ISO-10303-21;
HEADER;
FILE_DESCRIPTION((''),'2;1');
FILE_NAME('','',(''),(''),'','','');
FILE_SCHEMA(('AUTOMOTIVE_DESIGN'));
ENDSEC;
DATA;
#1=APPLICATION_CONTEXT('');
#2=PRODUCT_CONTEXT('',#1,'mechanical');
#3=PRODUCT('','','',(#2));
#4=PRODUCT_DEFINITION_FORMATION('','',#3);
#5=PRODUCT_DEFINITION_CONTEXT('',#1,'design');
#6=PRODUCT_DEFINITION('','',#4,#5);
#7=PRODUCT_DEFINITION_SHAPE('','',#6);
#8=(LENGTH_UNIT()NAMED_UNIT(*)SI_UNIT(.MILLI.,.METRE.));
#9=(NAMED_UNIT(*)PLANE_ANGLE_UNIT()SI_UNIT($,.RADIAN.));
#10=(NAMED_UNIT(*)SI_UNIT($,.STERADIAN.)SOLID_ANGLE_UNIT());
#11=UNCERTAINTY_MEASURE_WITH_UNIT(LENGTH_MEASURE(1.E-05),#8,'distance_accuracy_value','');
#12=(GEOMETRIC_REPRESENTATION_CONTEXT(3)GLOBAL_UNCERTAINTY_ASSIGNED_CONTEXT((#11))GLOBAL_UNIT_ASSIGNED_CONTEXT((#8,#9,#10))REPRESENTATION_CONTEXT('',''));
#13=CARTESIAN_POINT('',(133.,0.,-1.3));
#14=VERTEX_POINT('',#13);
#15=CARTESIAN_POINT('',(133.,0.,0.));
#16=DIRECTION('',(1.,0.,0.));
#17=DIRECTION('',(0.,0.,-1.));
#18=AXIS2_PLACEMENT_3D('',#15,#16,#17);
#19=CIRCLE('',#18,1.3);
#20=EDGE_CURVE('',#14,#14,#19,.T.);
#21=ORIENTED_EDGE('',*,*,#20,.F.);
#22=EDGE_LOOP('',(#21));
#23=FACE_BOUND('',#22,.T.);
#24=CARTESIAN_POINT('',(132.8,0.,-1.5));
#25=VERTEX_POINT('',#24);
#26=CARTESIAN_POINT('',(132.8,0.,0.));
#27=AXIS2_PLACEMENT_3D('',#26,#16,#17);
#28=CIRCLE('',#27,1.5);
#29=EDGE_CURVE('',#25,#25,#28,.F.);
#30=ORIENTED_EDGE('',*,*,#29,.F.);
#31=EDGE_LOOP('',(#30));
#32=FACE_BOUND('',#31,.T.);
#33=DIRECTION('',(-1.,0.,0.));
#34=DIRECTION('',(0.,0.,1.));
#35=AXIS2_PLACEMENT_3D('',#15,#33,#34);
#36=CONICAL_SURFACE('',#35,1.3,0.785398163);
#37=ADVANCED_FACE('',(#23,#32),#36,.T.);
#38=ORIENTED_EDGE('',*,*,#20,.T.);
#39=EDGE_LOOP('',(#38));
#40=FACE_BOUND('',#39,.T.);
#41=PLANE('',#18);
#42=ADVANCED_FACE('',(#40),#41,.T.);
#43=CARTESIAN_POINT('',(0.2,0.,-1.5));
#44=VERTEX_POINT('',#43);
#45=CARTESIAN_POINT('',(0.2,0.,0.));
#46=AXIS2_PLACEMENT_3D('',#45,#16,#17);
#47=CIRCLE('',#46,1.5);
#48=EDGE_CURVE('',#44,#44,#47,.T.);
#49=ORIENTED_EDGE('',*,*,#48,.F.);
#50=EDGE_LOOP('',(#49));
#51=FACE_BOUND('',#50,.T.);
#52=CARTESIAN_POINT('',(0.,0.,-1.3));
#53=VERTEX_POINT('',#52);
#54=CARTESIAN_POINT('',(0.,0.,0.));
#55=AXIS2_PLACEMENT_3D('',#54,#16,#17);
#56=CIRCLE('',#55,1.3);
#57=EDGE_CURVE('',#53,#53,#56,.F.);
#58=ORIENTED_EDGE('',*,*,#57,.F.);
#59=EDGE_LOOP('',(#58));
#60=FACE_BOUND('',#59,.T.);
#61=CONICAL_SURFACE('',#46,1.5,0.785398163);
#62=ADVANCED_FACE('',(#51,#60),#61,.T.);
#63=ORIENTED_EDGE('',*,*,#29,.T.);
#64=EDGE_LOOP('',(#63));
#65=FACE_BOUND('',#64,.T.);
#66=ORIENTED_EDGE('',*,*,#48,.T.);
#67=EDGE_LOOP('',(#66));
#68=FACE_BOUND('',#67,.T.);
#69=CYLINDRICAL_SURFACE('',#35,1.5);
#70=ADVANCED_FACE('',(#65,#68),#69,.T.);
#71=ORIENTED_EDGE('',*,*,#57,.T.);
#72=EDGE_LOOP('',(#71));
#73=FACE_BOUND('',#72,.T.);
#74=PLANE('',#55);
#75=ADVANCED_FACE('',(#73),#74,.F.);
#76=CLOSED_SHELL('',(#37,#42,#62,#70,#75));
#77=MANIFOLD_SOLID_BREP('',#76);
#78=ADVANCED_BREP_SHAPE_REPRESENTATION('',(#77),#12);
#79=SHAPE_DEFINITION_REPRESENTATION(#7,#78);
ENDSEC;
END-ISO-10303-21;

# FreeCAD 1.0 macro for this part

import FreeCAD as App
import Part
import Sketcher
Q = App.Units.Quantity


def edges_at(feature, points):
    """Names of the edges that pass closest to the given points."""
    edges = feature.Shape.Edges
    near = lambda p: min(range(len(edges)), key=lambda i: edges[i].distToShape(Part.Vertex(*p))[0])
    return sorted({f"Edge{near(p) + 1}" for p in points})

doc = App.newDocument("Part")
body = doc.addObject("PartDesign::Body", "Body")

sketch1 = doc.addObject("Sketcher::SketchObject", "Sketch")
body.addObject(sketch1)
sketch1.AttachmentSupport = (doc.YZ_Plane, [""])
sketch1.MapMode = "FlatFace"
sketch1.addGeometry(Part.Circle(App.Vector(0, 0, 0), App.Vector(0, 0, 1), 1.5), False)
sketch1.addConstraint([
    Sketcher.Constraint("Coincident", 0, 3, -1, 1),
    Sketcher.Constraint("Diameter", 0, Q("3 mm")),
])
pad1 = doc.addObject("PartDesign::Pad", "Pad")
body.addObject(pad1)
pad1.Profile = sketch1
pad1.Length = 133
doc.recompute()

chamfer = doc.addObject("PartDesign::Chamfer", "Chamfer")
body.addObject(chamfer)
chamfer.Base = (pad1, edges_at(pad1, [(0, 0, 1.5), (133, 0, 1.5)]))
chamfer.Size = 0.2

doc.recompute()
